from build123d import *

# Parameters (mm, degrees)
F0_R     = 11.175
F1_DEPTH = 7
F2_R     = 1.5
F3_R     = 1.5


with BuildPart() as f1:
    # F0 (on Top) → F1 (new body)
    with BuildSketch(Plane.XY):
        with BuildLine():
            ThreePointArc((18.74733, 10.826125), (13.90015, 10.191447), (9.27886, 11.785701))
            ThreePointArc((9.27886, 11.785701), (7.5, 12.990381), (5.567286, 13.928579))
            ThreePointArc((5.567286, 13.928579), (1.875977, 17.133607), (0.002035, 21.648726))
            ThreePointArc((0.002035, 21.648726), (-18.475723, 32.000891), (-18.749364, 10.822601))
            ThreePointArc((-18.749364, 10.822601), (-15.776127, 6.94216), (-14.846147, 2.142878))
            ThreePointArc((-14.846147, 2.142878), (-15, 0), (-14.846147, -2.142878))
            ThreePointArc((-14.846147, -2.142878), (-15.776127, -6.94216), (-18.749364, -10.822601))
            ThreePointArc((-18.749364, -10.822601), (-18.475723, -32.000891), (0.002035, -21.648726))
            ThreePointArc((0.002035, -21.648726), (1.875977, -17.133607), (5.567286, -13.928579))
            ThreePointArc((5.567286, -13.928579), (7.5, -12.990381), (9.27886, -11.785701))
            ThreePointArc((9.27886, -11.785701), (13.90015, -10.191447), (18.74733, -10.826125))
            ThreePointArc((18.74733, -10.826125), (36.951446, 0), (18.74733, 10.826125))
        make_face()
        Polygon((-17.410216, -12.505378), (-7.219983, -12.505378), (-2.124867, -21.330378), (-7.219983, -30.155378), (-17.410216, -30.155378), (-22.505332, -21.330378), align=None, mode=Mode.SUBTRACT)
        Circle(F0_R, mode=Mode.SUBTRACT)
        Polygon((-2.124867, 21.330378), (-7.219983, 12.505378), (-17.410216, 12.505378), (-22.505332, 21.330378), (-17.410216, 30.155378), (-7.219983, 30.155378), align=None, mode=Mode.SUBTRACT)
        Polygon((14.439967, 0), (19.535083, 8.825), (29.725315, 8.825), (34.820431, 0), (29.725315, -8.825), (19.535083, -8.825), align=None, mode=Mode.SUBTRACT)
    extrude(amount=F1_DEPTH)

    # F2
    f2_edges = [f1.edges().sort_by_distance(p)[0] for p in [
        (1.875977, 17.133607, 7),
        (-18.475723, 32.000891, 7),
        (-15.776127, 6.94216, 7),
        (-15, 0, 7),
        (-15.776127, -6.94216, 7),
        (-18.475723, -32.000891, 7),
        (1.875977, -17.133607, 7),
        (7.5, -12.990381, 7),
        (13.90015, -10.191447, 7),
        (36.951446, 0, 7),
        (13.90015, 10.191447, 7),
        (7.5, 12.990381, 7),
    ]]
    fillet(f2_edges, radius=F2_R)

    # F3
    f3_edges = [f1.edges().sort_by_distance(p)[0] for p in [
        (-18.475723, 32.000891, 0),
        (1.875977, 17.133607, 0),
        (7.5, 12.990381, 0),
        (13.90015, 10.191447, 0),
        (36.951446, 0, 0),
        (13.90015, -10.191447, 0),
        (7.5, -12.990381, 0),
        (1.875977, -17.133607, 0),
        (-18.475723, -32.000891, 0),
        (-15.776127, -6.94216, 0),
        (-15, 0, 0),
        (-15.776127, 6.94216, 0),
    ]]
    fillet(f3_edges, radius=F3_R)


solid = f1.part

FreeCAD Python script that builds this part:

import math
import FreeCAD as App
import Part
import Sketcher

V = App.Vector
Q = App.Units.Quantity


def edges_at(feature, points):
    """Names of the edges that pass closest to the given points."""
    edges = feature.Shape.Edges
    near = lambda p: min(range(len(edges)), key=lambda i: edges[i].distToShape(Part.Vertex(*p))[0])
    return sorted({f"Edge{near(p) + 1}" for p in points})


def add_polygon(sketch, points):
    """Adds a closed chain of lines whose ends are joined by coincident constraints."""
    first, n = sketch.GeometryCount, len(points)
    for a, b in zip(points, points[1:] + points[:1]):
        sketch.addGeometry(Part.LineSegment(App.Vector(*a, 0), App.Vector(*b, 0)), False)
    for i in range(n):
        sketch.addConstraint(Sketcher.Constraint("Coincident", first + i, 2, first + (i + 1) % n, 1))

doc = App.newDocument("Part")
body = doc.addObject("PartDesign::Body", "Body")

# Sketch on XY plane
sketch1 = doc.addObject("Sketcher::SketchObject", "Sketch")
body.addObject(sketch1)
sketch1.AttachmentSupport = (doc.XY_Plane, [""])
sketch1.MapMode = "FlatFace"
sketch1.addGeometry(Part.ArcOfCircle(Part.Circle(V(14.975689, 20.80416, 0), V(0, 0, 1), 10.667073), math.radians(-122.280004), math.radians(-69.293689)), False)  # 0
sketch1.addGeometry(Part.ArcOfCircle(Part.Circle(V(0.000016, 0.000027, 0), V(0, 0, 1), 14.999968), math.radians(51.786693), math.radians(68.213312)), False)  # 1
sketch1.addGeometry(Part.ArcOfCircle(Part.Circle(V(10.529088, 23.371406, 0), V(0, 0, 1), 10.667074), math.radians(-170.706311), math.radians(-117.720004)), False)  # 2
sketch1.addGeometry(Part.ArcOfCircle(Part.Circle(V(-12.315099, 21.330378, 0), V(0, 0, 1), 12.321247), math.radians(1.480535), math.radians(238.519464)), False)  # 3
sketch1.addGeometry(Part.ArcOfCircle(Part.Circle(V(-25.50477, 2.56725, 0), V(0, 0, 1), 10.667068), math.radians(-2.280019), math.radians(50.70632)), False)  # 4
sketch1.addGeometry(Part.ArcOfCircle(Part.Circle(V(0.000022, 0, 0), V(0, 0, 1), 15.000022), math.radians(171.786721), math.radians(188.213279)), False)  # 5
sketch1.addGeometry(Part.ArcOfCircle(Part.Circle(V(-25.50477, -2.56725, 0), V(0, 0, 1), 10.667068), math.radians(-50.70632), math.radians(2.280019)), False)  # 6
sketch1.addGeometry(Part.ArcOfCircle(Part.Circle(V(-12.315099, -21.330378, 0), V(0, 0, 1), 12.321247), math.radians(121.480536), math.radians(358.519465)), False)  # 7
sketch1.addGeometry(Part.ArcOfCircle(Part.Circle(V(10.529088, -23.371406, 0), V(0, 0, 1), 10.667074), math.radians(117.720004), math.radians(170.706311)), False)  # 8
sketch1.addGeometry(Part.ArcOfCircle(Part.Circle(V(0.000016, -0.000027, 0), V(0, 0, 1), 14.999968), math.radians(-68.213312), math.radians(-51.786693)), False)  # 9
sketch1.addGeometry(Part.ArcOfCircle(Part.Circle(V(14.975689, -20.80416, 0), V(0, 0, 1), 10.667073), math.radians(69.293689), math.radians(122.280004)), False)  # 10
sketch1.addGeometry(Part.ArcOfCircle(Part.Circle(V(24.630199, 0, 0), V(0, 0, 1), 12.321247), math.radians(-118.519463), math.radians(118.519463)), False)  # 11
add_polygon(sketch1, [(-22.505332, -21.330378), (-17.410216, -12.505378), (-7.219983, -12.505378), (-2.124867, -21.330378), (-7.219983, -30.155378), (-17.410216, -30.155378)])  # lines 12-17
sketch1.addGeometry(Part.Circle(V(0, 0, 0), V(0, 0, 1), 11.175), False)  # 18
add_polygon(sketch1, [(19.535083, -8.825), (14.439967, 0), (19.535083, 8.825), (29.725315, 8.825), (34.820431, 0), (29.725315, -8.825)])  # lines 19-24
add_polygon(sketch1, [(-7.219983, 30.155378), (-2.124867, 21.330378), (-7.219983, 12.505378), (-17.410216, 12.505378), (-22.505332, 21.330378), (-17.410216, 30.155378)])  # lines 25-30
sketch1.addConstraint([
    Sketcher.Constraint("Coincident", 0, 1, 1, 1),
    Sketcher.Constraint("Coincident", 1, 2, 2, 2),
    Sketcher.Constraint("Coincident", 2, 1, 3, 1),
    Sketcher.Constraint("Coincident", 3, 2, 4, 2),
    Sketcher.Constraint("Coincident", 4, 1, 5, 1),
    Sketcher.Constraint("Coincident", 5, 2, 6, 2),
    Sketcher.Constraint("Coincident", 6, 1, 7, 1),
    Sketcher.Constraint("Coincident", 7, 2, 8, 2),
    Sketcher.Constraint("Coincident", 8, 1, 9, 1),
    Sketcher.Constraint("Coincident", 9, 2, 10, 2),
    Sketcher.Constraint("Coincident", 10, 1, 11, 1),
    Sketcher.Constraint("Coincident", 11, 2, 0, 2),
    Sketcher.Constraint("Horizontal", 13),
    Sketcher.Constraint("Horizontal", 16),
    Sketcher.Constraint("Horizontal", 21),
    Sketcher.Constraint("Horizontal", 24),
    Sketcher.Constraint("Horizontal", 27),
    Sketcher.Constraint("Horizontal", 30),
    Sketcher.Constraint("Coincident", 18, 3, -1, 1),
    Sketcher.Constraint("PointOnObject", 5, 3, -1),
    Sketcher.Constraint("PointOnObject", 11, 3, -1),
    Sketcher.Constraint("PointOnObject", 19, 2, -1),
    Sketcher.Constraint("PointOnObject", 22, 2, -1),
    Sketcher.Constraint("Diameter", 18, Q("22.35 mm")),
    Sketcher.Constraint("Radius", 4, Q("10.667068 mm")),
    Sketcher.Constraint("Radius", 6, Q("10.667068 mm")),
    Sketcher.Constraint("DistanceY", 15, 2, 13, 2, Q("17.65 mm")),
    Sketcher.Constraint("DistanceY", 23, 2, 21, 2, Q("17.65 mm")),
    Sketcher.Constraint("DistanceY", 27, 2, 29, 2, Q("17.65 mm")),
    Sketcher.Constraint("DistanceY", -1, 1, 20, 2, Q("8.825 mm")),
    Sketcher.Constraint("Radius", 0, Q("10.667073 mm")),
    Sketcher.Constraint("Radius", 1, Q("14.999968 mm")),
    Sketcher.Constraint("Radius", 2, Q("10.667074 mm")),
    Sketcher.Constraint("Radius", 3, Q("12.321247 mm")),
    Sketcher.Constraint("Radius", 5, Q("15.000022 mm")),
    Sketcher.Constraint("Radius", 7, Q("12.321247 mm")),
    Sketcher.Constraint("Radius", 8, Q("10.667074 mm")),
    Sketcher.Constraint("Radius", 9, Q("14.999968 mm")),
    Sketcher.Constraint("Radius", 10, Q("10.667073 mm")),
    Sketcher.Constraint("Radius", 11, Q("12.321247 mm")),
    Sketcher.Constraint("DistanceY", 7, 3, 12, 2, Q("8.825 mm")),
    Sketcher.Constraint("DistanceY", 14, 2, 13, 2, Q("8.825 mm")),
    Sketcher.Constraint("DistanceY", 17, 2, 12, 2, Q("8.825 mm")),
    Sketcher.Constraint("DistanceY", 26, 2, 3, 3, Q("8.825 mm")),
    Sketcher.Constraint("DistanceY", 26, 2, 25, 2, Q("8.825 mm")),
    Sketcher.Constraint("DistanceY", 27, 2, 28, 2, Q("8.825 mm")),
    Sketcher.Constraint("DistanceX", 21, 1, 21, 2, Q("10.190232 mm")),
    Sketcher.Constraint("DistanceX", 24, 2, 24, 1, Q("10.190232 mm")),
    Sketcher.Constraint("DistanceX", 3, 3, -1, 1, Q("12.315099 mm")),
    Sketcher.Constraint("DistanceX", 7, 3, -1, 1, Q("12.315099 mm")),
    Sketcher.Constraint("DistanceX", -1, 1, 11, 3, Q("24.630199 mm")),
    Sketcher.Constraint("DistanceY", -1, 1, 0, 1, Q("11.785701 mm")),
    Sketcher.Constraint("DistanceY", -1, 1, 3, 2, Q("10.822601 mm")),
    Sketcher.Constraint("DistanceY", 6, 1, -1, 1, Q("10.822601 mm")),
    Sketcher.Constraint("DistanceY", 9, 2, -1, 1, Q("11.785701 mm")),
    Sketcher.Constraint("DistanceX", 2, 3, 0, 3, Q("4.446601 mm")),
    Sketcher.Constraint("DistanceY", 6, 3, 4, 3, Q("5.134499 mm")),
    Sketcher.Constraint("DistanceX", 8, 3, 10, 3, Q("4.446601 mm")),
    Sketcher.Constraint("DistanceX", 1, 2, 2, 3, Q("4.961802 mm")),
    Sketcher.Constraint("DistanceY", 7, 2, 9, 3, Q("21.648699 mm")),
    Sketcher.Constraint("DistanceX", 8, 1, 8, 3, Q("4.961802 mm")),
    Sketcher.Constraint("DistanceY", 12, 2, 5, 2, Q("10.3625 mm")),
    Sketcher.Constraint("DistanceY", 8, 1, 13, 2, Q("1.423201 mm")),
    Sketcher.Constraint("DistanceX", 14, 2, 7, 2, Q("2.126902 mm")),
    Sketcher.Constraint("DistanceX", 11, 2, 22, 2, Q("16.073101 mm")),
    Sketcher.Constraint("DistanceX", 10, 1, 22, 2, Q("16.073101 mm")),
    Sketcher.Constraint("DistanceX", 25, 2, 2, 1, Q("2.126902 mm")),
    Sketcher.Constraint("DistanceY", 1, 2, 25, 2, Q("7.401799 mm")),
    Sketcher.Constraint("DistanceY", 4, 1, 27, 2, Q("10.3625 mm")),
    Sketcher.Constraint("DistanceX", 13, 1, 13, 2, Q("10.190233 mm")),
    Sketcher.Constraint("DistanceX", 16, 2, 16, 1, Q("10.190233 mm")),
    Sketcher.Constraint("DistanceX", 27, 2, 27, 1, Q("10.190233 mm")),
    Sketcher.Constraint("DistanceX", 30, 1, 30, 2, Q("10.190233 mm")),
    Sketcher.Constraint("DistanceX", -1, 1, 0, 3, Q("14.975689 mm")),
    Sketcher.Constraint("DistanceY", -1, 1, 0, 3, Q("20.80416 mm")),
    Sketcher.Constraint("DistanceX", 4, 3, -1, 1, Q("25.50477 mm")),
    Sketcher.Constraint("DistanceY", -1, 1, 4, 3, Q("2.56725 mm")),
    Sketcher.Constraint("DistanceX", 17, 2, -1, 1, Q("22.505332 mm")),
    Sketcher.Constraint("DistanceX", 28, 2, -1, 1, Q("22.505332 mm")),
    Sketcher.Constraint("DistanceX", 6, 1, 12, 2, Q("1.339148 mm")),
    Sketcher.Constraint("DistanceX", 15, 2, 8, 3, Q("17.749071 mm")),
    Sketcher.Constraint("DistanceX", 19, 2, 11, 3, Q("10.190232 mm")),
    Sketcher.Constraint("DistanceX", 3, 2, 26, 2, Q("11.529381 mm")),
    Sketcher.Constraint("DistanceX", 29, 2, 25, 2, Q("15.285349 mm")),
    Sketcher.Constraint("Distance", 19, Q("10.190232 mm")),
    Sketcher.Constraint("Distance", 20, Q("10.190232 mm")),
])
pad1 = doc.addObject("PartDesign::Pad", "Pad")
body.addObject(pad1)
pad1.Profile = sketch1
pad1.Length = 7
doc.recompute()

fillet = doc.addObject("PartDesign::Fillet", "Fillet")
body.addObject(fillet)
fillet.Base = (pad1, edges_at(pad1, [
    (1.876, 17.134, 7),
    (-18.476, 32.001, 7),
    (-15.776, 6.942, 7),
    (-15, 0, 7),
    (-15.776, -6.942, 7),
    (-18.476, -32.001, 7),
    (1.876, -17.134, 7),
    (7.5, -12.99, 7),
    (13.9, -10.191, 7),
    (36.951, 0, 7),
    (13.9, 10.191, 7),
    (7.5, 12.99, 7),
]))
fillet.Radius = 1.5
doc.recompute()

fillet2 = doc.addObject("PartDesign::Fillet", "Fillet001")
body.addObject(fillet2)
fillet2.Base = (fillet, edges_at(fillet, [
    (-18.476, 32.001, 0),
    (1.876, 17.134, 0),
    (7.5, 12.99, 0),
    (13.9, 10.191, 0),
    (36.951, 0, 0),
    (13.9, -10.191, 0),
    (7.5, -12.99, 0),
    (1.876, -17.134, 0),
    (-18.476, -32.001, 0),
    (-15.776, -6.942, 0),
    (-15, 0, 0),
    (-15.776, 6.942, 0),
]))
fillet2.Radius = 1.5

doc.recompute()
